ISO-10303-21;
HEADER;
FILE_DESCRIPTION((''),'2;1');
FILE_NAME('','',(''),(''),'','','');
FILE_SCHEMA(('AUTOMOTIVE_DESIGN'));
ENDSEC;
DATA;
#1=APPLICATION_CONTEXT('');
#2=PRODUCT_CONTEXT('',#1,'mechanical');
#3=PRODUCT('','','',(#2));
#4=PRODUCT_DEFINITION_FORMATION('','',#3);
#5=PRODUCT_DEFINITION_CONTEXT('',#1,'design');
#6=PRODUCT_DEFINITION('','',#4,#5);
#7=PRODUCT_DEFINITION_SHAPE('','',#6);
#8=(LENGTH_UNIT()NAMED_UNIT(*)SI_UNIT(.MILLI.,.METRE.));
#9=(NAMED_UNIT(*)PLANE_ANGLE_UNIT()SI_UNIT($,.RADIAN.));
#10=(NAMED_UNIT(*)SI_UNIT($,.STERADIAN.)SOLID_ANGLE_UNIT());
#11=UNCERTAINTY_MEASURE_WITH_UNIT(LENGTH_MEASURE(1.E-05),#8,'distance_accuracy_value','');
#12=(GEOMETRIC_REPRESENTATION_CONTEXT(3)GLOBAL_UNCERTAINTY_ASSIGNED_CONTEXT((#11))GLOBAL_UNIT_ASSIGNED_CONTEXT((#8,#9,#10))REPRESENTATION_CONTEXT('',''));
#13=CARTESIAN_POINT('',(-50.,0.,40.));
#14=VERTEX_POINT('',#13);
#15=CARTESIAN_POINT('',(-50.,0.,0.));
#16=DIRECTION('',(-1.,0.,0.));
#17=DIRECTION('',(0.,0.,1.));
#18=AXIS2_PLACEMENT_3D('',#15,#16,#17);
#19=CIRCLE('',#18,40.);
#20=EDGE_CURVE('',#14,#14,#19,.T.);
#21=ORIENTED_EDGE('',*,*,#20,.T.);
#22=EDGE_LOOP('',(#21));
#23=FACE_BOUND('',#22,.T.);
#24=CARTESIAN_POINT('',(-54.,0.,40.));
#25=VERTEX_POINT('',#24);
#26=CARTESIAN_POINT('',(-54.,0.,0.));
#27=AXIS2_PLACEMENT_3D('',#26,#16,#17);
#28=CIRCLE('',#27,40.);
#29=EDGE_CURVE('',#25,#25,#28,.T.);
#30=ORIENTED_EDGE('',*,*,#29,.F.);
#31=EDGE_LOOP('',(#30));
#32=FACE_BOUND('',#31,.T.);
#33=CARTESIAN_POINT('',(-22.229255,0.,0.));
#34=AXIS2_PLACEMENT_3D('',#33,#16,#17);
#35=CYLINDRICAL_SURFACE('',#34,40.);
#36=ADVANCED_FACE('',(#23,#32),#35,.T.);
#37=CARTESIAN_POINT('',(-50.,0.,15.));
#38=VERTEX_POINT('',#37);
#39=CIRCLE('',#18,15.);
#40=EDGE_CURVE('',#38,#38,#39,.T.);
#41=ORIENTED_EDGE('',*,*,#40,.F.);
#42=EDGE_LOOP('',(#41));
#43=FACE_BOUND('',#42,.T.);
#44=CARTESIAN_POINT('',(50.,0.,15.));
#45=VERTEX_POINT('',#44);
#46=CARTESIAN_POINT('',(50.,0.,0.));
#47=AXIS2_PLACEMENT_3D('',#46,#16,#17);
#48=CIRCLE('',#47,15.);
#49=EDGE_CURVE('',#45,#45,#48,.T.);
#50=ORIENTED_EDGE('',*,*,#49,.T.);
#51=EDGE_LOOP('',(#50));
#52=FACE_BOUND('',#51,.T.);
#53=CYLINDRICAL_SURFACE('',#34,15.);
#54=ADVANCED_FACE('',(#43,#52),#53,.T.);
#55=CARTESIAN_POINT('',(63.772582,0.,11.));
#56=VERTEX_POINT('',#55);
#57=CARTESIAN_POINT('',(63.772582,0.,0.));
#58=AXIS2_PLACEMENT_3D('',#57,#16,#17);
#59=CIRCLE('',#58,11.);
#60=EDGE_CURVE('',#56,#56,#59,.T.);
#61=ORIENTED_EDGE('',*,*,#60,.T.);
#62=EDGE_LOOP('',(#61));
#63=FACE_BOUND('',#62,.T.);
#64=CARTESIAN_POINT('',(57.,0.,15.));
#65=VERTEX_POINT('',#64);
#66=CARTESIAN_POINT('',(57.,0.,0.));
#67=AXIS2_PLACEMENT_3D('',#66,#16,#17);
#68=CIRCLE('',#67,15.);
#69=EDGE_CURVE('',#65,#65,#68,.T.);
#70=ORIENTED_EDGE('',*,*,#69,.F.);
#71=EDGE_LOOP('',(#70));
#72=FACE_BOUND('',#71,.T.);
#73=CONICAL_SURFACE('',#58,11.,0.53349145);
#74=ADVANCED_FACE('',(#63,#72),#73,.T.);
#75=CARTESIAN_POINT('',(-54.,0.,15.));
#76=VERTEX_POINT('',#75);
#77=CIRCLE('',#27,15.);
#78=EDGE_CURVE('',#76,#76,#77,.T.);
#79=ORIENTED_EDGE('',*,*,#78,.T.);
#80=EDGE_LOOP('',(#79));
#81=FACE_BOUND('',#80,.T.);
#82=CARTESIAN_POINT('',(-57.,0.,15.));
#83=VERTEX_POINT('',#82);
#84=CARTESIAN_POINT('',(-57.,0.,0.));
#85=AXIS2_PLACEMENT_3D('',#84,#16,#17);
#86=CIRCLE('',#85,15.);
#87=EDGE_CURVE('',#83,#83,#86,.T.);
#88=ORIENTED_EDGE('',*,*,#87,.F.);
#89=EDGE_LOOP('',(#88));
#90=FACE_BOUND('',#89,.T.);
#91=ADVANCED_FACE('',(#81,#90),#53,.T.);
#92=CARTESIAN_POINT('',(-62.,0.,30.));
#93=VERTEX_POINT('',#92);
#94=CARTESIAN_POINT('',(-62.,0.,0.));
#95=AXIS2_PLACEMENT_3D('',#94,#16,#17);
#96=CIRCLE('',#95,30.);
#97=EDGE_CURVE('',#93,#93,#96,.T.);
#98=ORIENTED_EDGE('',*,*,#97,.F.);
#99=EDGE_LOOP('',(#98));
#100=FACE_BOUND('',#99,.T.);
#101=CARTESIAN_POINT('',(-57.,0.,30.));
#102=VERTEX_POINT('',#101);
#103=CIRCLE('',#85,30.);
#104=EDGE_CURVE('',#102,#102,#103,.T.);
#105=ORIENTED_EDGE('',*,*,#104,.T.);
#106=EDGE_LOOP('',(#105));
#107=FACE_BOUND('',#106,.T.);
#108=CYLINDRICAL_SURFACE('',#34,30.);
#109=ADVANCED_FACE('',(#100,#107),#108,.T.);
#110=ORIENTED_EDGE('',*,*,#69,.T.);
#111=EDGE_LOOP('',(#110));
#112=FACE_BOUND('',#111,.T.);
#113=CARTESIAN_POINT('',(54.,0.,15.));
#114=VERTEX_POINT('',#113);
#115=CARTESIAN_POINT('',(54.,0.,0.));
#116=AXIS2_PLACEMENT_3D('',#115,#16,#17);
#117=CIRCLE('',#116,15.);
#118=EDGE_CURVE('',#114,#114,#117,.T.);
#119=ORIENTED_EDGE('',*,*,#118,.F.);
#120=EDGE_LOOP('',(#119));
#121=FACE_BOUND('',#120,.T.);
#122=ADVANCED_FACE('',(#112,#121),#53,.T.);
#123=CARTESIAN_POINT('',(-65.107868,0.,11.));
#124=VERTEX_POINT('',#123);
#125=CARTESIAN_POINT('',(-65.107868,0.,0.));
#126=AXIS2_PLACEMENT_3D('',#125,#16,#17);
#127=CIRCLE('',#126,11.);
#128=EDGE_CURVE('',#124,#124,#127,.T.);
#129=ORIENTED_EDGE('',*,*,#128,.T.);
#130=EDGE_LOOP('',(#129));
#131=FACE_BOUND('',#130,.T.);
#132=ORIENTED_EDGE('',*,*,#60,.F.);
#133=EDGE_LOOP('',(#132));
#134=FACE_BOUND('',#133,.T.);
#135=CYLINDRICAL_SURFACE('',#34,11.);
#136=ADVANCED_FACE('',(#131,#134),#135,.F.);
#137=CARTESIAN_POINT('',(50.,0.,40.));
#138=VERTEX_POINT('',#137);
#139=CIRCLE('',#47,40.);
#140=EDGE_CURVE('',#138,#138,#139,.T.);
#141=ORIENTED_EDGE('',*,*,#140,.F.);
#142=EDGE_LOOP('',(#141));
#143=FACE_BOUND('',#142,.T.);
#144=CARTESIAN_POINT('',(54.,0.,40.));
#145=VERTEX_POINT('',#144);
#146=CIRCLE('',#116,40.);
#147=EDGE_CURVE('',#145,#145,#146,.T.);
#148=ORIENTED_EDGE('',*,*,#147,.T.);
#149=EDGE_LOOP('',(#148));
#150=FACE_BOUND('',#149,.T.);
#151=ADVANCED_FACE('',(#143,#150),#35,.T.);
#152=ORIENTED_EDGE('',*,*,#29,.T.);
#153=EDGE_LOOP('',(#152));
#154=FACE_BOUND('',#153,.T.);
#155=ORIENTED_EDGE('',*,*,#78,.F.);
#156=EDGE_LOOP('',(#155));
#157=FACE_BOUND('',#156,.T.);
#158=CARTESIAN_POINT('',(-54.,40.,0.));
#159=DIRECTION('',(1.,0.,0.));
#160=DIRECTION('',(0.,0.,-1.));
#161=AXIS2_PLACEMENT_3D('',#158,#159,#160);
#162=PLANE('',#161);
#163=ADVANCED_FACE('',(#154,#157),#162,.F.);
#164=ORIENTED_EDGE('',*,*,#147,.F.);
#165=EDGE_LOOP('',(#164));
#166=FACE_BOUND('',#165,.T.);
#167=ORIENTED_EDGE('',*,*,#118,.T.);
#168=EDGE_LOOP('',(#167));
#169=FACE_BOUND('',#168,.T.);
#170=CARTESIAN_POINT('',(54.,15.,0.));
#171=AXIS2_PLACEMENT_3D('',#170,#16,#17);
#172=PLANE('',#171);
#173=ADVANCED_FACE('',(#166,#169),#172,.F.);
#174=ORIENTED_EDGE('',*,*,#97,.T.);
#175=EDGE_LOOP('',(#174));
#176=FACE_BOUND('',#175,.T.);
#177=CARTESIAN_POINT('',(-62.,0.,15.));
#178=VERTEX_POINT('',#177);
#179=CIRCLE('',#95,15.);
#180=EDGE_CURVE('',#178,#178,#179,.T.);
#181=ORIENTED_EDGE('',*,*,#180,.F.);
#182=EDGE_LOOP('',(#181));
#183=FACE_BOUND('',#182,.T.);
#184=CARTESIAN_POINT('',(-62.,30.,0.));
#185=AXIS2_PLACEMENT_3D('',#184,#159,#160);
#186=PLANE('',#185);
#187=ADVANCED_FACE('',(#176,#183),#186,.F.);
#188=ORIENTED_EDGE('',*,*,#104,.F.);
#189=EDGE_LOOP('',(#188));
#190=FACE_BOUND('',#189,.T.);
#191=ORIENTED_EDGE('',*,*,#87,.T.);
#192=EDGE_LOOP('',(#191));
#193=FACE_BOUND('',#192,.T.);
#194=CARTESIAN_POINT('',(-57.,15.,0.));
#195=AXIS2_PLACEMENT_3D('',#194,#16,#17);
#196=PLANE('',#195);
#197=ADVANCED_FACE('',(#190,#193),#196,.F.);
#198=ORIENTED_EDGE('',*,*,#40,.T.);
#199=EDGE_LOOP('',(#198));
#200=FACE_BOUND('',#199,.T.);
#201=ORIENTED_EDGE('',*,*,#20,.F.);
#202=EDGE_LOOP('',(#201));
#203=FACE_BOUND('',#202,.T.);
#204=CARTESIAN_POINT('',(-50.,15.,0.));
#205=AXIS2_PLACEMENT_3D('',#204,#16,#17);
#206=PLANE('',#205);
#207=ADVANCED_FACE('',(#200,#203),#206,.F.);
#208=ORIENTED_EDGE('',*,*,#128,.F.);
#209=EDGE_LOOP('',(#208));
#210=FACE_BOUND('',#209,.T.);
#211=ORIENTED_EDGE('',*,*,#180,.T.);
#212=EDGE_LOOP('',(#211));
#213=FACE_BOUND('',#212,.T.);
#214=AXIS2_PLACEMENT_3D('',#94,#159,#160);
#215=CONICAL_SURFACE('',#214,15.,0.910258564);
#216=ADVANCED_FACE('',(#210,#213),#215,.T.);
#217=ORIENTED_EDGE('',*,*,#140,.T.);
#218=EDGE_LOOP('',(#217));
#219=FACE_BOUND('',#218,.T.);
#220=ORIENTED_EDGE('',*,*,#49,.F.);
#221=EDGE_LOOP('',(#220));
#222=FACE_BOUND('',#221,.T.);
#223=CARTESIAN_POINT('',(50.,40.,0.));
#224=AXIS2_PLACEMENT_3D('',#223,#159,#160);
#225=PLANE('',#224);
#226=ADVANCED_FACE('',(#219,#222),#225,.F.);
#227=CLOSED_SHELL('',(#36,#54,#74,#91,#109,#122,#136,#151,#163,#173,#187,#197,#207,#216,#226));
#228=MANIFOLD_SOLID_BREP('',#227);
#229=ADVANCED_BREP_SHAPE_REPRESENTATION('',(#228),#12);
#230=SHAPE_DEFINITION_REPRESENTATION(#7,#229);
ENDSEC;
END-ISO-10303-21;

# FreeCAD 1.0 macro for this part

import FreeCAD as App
import Part
import Sketcher

V = App.Vector
Q = App.Units.Quantity


def add_polygon(sketch, points):
    """Adds a closed chain of lines whose ends are joined by coincident constraints."""
    first, n = sketch.GeometryCount, len(points)
    for a, b in zip(points, points[1:] + points[:1]):
        sketch.addGeometry(Part.LineSegment(App.Vector(*a, 0), App.Vector(*b, 0)), False)
    for i in range(n):
        sketch.addConstraint(Sketcher.Constraint("Coincident", first + i, 2, first + (i + 1) % n, 1))

doc = App.newDocument("Part")
body = doc.addObject("PartDesign::Body", "Body")

sketch1 = body.newObject("Sketcher::SketchObject", "Sketch")
sketch1.AttachmentSupport = (doc.getObject("XY_Plane"), [""])
sketch1.MapMode = "FlatFace"
add_polygon(sketch1, [(63.772582, 11), (57, 15), (54, 15), (54, 40), (50, 40), (50, 15), (-50, 15), (-50, 40), (-54, 40), (-54, 15), (-57, 15), (-57, 30), (-62, 30), (-62, 15), (-65.107868, 11)])
sketch1.addConstraint(Sketcher.Constraint("Horizontal", 1))
sketch1.addConstraint(Sketcher.Constraint("Vertical", 2))
sketch1.addConstraint(Sketcher.Constraint("Horizontal", 3))
sketch1.addConstraint(Sketcher.Constraint("Vertical", 4))
sketch1.addConstraint(Sketcher.Constraint("Horizontal", 5))
sketch1.addConstraint(Sketcher.Constraint("Vertical", 6))
sketch1.addConstraint(Sketcher.Constraint("Horizontal", 7))
sketch1.addConstraint(Sketcher.Constraint("Vertical", 8))
sketch1.addConstraint(Sketcher.Constraint("Horizontal", 9))
sketch1.addConstraint(Sketcher.Constraint("Vertical", 10))
sketch1.addConstraint(Sketcher.Constraint("Horizontal", 11))
sketch1.addConstraint(Sketcher.Constraint("Vertical", 12))
sketch1.addConstraint(Sketcher.Constraint("Horizontal", 14))
sketch1.addConstraint(Sketcher.Constraint("Symmetric", 3, 2, 6, 2, -2))
sketch1.addConstraint(Sketcher.Constraint("Symmetric", 1, 2, 8, 2, -2))
sketch1.addConstraint(Sketcher.Constraint("Horizontal", 1, 2, 4, 2))
sketch1.addConstraint(Sketcher.Constraint("Horizontal", 9, 2, 12, 2))
sketch1.addConstraint(Sketcher.Constraint("Equal", 1, 9))
sketch1.addConstraint(Sketcher.Constraint("DistanceX", 1, 2, 1, 1, Q("3 mm")))
sketch1.addConstraint(Sketcher.Constraint("DistanceX", 3, 2, 3, 1, Q("4 mm")))
sketch1.addConstraint(Sketcher.Constraint("DistanceX", 5, 2, 5, 1, Q("100 mm")))
sketch1.addConstraint(Sketcher.Constraint("DistanceX", 11, 2, 11, 1, Q("5 mm")))
sketch1.addConstraint(Sketcher.Constraint("DistanceY", 2, 1, 2, 2, Q("25 mm")))
sketch1.addConstraint(Sketcher.Constraint("DistanceY", 10, 1, 10, 2, Q("15 mm")))
sketch1.addConstraint(Sketcher.Constraint("DistanceY", -1, 1, 0, 2, Q("15 mm")))
sketch1.addConstraint(Sketcher.Constraint("DistanceY", -1, 1, 13, 2, Q("11 mm")))
sketch1.addConstraint(Sketcher.Constraint("DistanceX", 14, 1, 14, 2, Q("128.88045 mm")))
sketch1.addConstraint(Sketcher.Constraint("DistanceX", -1, 1, 14, 2, Q("63.772582 mm")))
revolution = body.newObject("PartDesign::Revolution", "Revolution")
revolution.Profile = sketch1
revolution.ReferenceAxis = (sketch1, ["H_Axis"])
revolution.Angle = 360

doc.recompute()
